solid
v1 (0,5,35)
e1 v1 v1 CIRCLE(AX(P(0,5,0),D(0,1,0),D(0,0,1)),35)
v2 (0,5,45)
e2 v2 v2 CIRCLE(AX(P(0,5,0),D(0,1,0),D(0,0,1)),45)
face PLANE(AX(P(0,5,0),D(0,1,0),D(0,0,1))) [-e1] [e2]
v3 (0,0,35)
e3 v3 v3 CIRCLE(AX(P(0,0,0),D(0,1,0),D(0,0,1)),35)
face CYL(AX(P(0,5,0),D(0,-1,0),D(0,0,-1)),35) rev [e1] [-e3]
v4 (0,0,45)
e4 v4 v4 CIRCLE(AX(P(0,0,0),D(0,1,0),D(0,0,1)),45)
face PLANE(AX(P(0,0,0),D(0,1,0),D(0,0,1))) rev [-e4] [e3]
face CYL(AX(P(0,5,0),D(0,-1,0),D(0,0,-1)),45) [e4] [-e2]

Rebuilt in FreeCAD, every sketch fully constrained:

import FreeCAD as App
import Part
import Sketcher

V = App.Vector
Q = App.Units.Quantity

doc = App.newDocument("Part")
params = doc.addObject("Spreadsheet::Sheet", "Params")
for row, (alias, value) in enumerate([
    ("sketch1_diameter", "90 mm"),
    ("sketch1_diameter2", "70 mm"),
    ("pad1_length", "5 mm"),
], start=1):
    params.set(f"A{row}", alias)
    params.set(f"B{row}", "=" + value)
    params.setAlias(f"B{row}", alias)

body = doc.addObject("PartDesign::Body", "Body")

sketch1 = doc.addObject("Sketcher::SketchObject", "Sketch")
body.addObject(sketch1)
sketch1.AttachmentSupport = (doc.XZ_Plane, [""])
sketch1.MapMode = "FlatFace"
sketch1.addGeometry(Part.Circle(V(0, 0, 0), V(0, 0, 1), 45), False)
sketch1.addGeometry(Part.Circle(V(0, 0, 0), V(0, 0, 1), 35), False)
sketch1.addConstraint(Sketcher.Constraint("Coincident", 0, 3, -1, 1))
sketch1.addConstraint(Sketcher.Constraint("Coincident", 1, 3, -1, 1))
sketch1.addConstraint(Sketcher.Constraint("Diameter", 0, Q("90 mm")))
sketch1.addConstraint(Sketcher.Constraint("Diameter", 1, Q("70 mm")))
sketch1.setExpression("Constraints[2]", "Params.sketch1_diameter")
sketch1.setExpression("Constraints[3]", "Params.sketch1_diameter2")
pad1 = doc.addObject("PartDesign::Pad", "Pad")
body.addObject(pad1)
pad1.Profile = sketch1
pad1.setExpression("Length", "Params.pad1_length")
pad1.Reversed = True

doc.recompute()
